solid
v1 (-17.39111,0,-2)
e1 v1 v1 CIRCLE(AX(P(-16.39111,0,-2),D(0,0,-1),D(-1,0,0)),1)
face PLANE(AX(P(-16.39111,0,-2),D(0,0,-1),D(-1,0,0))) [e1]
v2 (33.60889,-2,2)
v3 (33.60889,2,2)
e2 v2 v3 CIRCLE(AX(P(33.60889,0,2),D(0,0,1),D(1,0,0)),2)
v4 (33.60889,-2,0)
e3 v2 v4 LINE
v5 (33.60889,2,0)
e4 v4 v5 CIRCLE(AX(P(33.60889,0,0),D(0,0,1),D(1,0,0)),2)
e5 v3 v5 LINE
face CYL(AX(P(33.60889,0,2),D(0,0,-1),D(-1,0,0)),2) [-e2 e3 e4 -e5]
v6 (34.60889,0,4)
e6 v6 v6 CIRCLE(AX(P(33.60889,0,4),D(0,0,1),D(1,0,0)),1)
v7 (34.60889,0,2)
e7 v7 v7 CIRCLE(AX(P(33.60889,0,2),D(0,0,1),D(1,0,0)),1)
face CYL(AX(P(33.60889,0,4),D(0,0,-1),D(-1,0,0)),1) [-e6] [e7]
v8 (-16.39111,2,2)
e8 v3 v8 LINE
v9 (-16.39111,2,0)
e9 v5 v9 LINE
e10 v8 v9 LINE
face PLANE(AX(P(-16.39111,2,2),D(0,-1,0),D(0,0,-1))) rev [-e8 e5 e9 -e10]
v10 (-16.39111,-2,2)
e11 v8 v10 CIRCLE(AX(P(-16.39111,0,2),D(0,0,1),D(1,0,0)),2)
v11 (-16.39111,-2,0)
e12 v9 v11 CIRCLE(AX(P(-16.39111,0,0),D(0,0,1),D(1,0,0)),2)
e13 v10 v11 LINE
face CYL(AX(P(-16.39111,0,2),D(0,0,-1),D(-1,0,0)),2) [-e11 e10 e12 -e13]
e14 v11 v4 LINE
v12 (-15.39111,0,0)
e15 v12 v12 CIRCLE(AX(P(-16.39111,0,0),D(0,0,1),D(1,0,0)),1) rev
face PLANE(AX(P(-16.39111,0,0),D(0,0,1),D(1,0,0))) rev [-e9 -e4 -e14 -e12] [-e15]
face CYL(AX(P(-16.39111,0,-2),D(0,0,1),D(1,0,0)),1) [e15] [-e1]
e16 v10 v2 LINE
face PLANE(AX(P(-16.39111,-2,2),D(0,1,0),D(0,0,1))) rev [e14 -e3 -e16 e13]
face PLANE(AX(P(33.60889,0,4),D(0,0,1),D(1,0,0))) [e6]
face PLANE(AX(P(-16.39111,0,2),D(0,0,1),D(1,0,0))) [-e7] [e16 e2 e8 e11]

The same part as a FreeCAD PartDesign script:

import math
import FreeCAD as App
import Part
import Sketcher
from FreeCAD import Vector
Q = App.Units.Quantity

doc = App.newDocument("Part")
body = doc.addObject("PartDesign::Body", "Body")

sketch1 = body.newObject("Sketcher::SketchObject", "Sketch")
sketch1.AttachmentSupport = (doc.getObject("XY_Plane"), [""])
sketch1.MapMode = "FlatFace"
sketch1.addGeometry([
    Part.LineSegment(Vector(-16.39111, -2, 0), Vector(33.60889, -2, 0)),
    Part.ArcOfCircle(Part.Circle(Vector(33.60889, 0, 0), Vector(0, 0, 1), 2), math.radians(-90), math.radians(90)),
    Part.LineSegment(Vector(33.60889, 2, 0), Vector(-16.39111, 2, 0)),
    Part.ArcOfCircle(Part.Circle(Vector(-16.39111, 0, 0), Vector(0, 0, 1), 2), math.radians(90), math.radians(270)),
], False)
sketch1.addConstraint([
    Sketcher.Constraint("Tangent", 0, 2, 1, 1),
    Sketcher.Constraint("Tangent", 1, 2, 2, 1),
    Sketcher.Constraint("Tangent", 2, 2, 3, 1),
    Sketcher.Constraint("Tangent", 3, 2, 0, 1),
    Sketcher.Constraint("Horizontal", 0),
    Sketcher.Constraint("Horizontal", 2),
    Sketcher.Constraint("PointOnObject", 1, 3, -1),
    Sketcher.Constraint("Radius", 1, Q("2 mm")),
    Sketcher.Constraint("DistanceX", 0, 1, 0, 2, Q("50 mm")),
    Sketcher.Constraint("DistanceX", -1, 1, 1, 3, Q("33.60889 mm")),
])
pad1 = body.newObject("PartDesign::Pad", "Pad")
pad1.Profile = sketch1
pad1.Length = 2

sketch2 = body.newObject("Sketcher::SketchObject", "Sketch001")
sketch2.AttachmentSupport = (doc.getObject("XY_Plane"), [""])
sketch2.MapMode = "FlatFace"
sketch2.AttachmentOffset = App.Placement(Vector(0, 0, 2), App.Rotation())
sketch2.addGeometry(Part.Circle(Vector(33.60889, 0, 0), Vector(0, 0, 1), 1), False)
sketch2.addConstraint([
    Sketcher.Constraint("PointOnObject", 0, 3, -1),
    Sketcher.Constraint("Diameter", 0, Q("2 mm")),
    Sketcher.Constraint("DistanceX", -1, 1, 0, 3, Q("33.60889 mm")),
])
pad2 = body.newObject("PartDesign::Pad", "Pad001")
pad2.Profile = sketch2
pad2.Length = 2

sketch3 = body.newObject("Sketcher::SketchObject", "Sketch002")
sketch3.AttachmentSupport = (doc.getObject("XY_Plane"), [""])
sketch3.MapMode = "FlatFace"
sketch3.addGeometry(Part.Circle(Vector(-16.39111, 0, 0), Vector(0, 0, 1), 1), False)
sketch3.addConstraint([
    Sketcher.Constraint("PointOnObject", 0, 3, -1),
    Sketcher.Constraint("Diameter", 0, Q("2 mm")),
    Sketcher.Constraint("DistanceX", 0, 3, -1, 1, Q("16.39111 mm")),
])
pad3 = body.newObject("PartDesign::Pad", "Pad002")
pad3.Profile = sketch3
pad3.Length = 2
pad3.Reversed = True

doc.recompute()
